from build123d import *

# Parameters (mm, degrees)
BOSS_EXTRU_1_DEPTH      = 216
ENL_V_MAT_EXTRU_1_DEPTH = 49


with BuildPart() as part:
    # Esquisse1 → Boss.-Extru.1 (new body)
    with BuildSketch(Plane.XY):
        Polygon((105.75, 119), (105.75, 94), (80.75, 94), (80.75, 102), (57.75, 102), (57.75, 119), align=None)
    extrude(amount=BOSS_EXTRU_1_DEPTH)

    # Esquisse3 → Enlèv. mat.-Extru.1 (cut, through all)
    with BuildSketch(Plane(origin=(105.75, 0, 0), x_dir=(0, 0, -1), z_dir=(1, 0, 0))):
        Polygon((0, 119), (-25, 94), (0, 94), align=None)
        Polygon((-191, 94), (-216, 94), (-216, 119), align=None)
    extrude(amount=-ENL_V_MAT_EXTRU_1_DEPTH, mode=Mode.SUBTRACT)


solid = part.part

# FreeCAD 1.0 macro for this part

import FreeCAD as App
import Part
import Sketcher
Q = App.Units.Quantity


def add_polygon(sketch, points):
    """Adds a closed chain of lines whose ends are joined by coincident constraints."""
    first, n = sketch.GeometryCount, len(points)
    for a, b in zip(points, points[1:] + points[:1]):
        sketch.addGeometry(Part.LineSegment(App.Vector(*a, 0), App.Vector(*b, 0)), False)
    for i in range(n):
        sketch.addConstraint(Sketcher.Constraint("Coincident", first + i, 2, first + (i + 1) % n, 1))

doc = App.newDocument("Part")
body = doc.addObject("PartDesign::Body", "Body")

# Sketch on XY plane
sketch1 = body.newObject("Sketcher::SketchObject", "Sketch")
sketch1.AttachmentSupport = (doc.getObject("XY_Plane"), [""])
sketch1.MapMode = "FlatFace"
add_polygon(sketch1, [(106, 94), (106, 119), (58, 119), (58, 102), (81, 102), (81, 94)])  # lines 0-5
sketch1.addConstraint([
    Sketcher.Constraint("Vertical", 0),
    Sketcher.Constraint("Horizontal", 1),
    Sketcher.Constraint("Vertical", 2),
    Sketcher.Constraint("Horizontal", 3),
    Sketcher.Constraint("Vertical", 4),
    Sketcher.Constraint("Horizontal", 5),
    Sketcher.Constraint("Equal", 5, 0),
    Sketcher.Constraint("DistanceX", 1, 2, 1, 1, Q("48 mm")),
    Sketcher.Constraint("DistanceX", 3, 1, 3, 2, Q("23 mm")),
    Sketcher.Constraint("DistanceY", 2, 2, 2, 1, Q("17 mm")),
    Sketcher.Constraint("DistanceY", -1, 1, 0, 2, Q("119 mm")),
    Sketcher.Constraint("DistanceX", -1, 1, 0, 2, Q("105.75 mm")),
])
pad1 = body.newObject("PartDesign::Pad", "Pad")
pad1.Profile = sketch1
pad1.Length = 216

# Sketch on YZ plane
sketch2 = body.newObject("Sketcher::SketchObject", "Sketch001")
sketch2.AttachmentSupport = (doc.getObject("YZ_Plane"), [""])
sketch2.MapMode = "FlatFace"
sketch2.AttachmentOffset = App.Placement(App.Vector(0, 0, 105.75), App.Rotation())
add_polygon(sketch2, [(119, 0), (94, 25), (94, 0)])  # lines 0-2
add_polygon(sketch2, [(94, 216), (94, 191), (119, 216)])  # lines 3-5
sketch2.addConstraint([
    Sketcher.Constraint("Vertical", 1),
    Sketcher.Constraint("Horizontal", 2),
    Sketcher.Constraint("Vertical", 3),
    Sketcher.Constraint("Horizontal", 5),
    Sketcher.Constraint("PointOnObject", 1, 2, -1),
    Sketcher.Constraint("Perpendicular", 0, 4),
    Sketcher.Constraint("Vertical", 1, 2, 3, 2),
    Sketcher.Constraint("Vertical", 2, 2, 4, 2),
    Sketcher.Constraint("Equal", 5, 1),
    Sketcher.Constraint("DistanceX", 2, 1, 2, 2, Q("25 mm")),
    Sketcher.Constraint("DistanceX", -1, 1, 0, 2, Q("94 mm")),
    Sketcher.Constraint("DistanceY", -1, 1, 3, 2, Q("191 mm")),
])
pocket1 = body.newObject("PartDesign::Pocket", "Pocket")
pocket1.Profile = sketch2
pocket1.Type = "ThroughAll"

doc.recompute()
